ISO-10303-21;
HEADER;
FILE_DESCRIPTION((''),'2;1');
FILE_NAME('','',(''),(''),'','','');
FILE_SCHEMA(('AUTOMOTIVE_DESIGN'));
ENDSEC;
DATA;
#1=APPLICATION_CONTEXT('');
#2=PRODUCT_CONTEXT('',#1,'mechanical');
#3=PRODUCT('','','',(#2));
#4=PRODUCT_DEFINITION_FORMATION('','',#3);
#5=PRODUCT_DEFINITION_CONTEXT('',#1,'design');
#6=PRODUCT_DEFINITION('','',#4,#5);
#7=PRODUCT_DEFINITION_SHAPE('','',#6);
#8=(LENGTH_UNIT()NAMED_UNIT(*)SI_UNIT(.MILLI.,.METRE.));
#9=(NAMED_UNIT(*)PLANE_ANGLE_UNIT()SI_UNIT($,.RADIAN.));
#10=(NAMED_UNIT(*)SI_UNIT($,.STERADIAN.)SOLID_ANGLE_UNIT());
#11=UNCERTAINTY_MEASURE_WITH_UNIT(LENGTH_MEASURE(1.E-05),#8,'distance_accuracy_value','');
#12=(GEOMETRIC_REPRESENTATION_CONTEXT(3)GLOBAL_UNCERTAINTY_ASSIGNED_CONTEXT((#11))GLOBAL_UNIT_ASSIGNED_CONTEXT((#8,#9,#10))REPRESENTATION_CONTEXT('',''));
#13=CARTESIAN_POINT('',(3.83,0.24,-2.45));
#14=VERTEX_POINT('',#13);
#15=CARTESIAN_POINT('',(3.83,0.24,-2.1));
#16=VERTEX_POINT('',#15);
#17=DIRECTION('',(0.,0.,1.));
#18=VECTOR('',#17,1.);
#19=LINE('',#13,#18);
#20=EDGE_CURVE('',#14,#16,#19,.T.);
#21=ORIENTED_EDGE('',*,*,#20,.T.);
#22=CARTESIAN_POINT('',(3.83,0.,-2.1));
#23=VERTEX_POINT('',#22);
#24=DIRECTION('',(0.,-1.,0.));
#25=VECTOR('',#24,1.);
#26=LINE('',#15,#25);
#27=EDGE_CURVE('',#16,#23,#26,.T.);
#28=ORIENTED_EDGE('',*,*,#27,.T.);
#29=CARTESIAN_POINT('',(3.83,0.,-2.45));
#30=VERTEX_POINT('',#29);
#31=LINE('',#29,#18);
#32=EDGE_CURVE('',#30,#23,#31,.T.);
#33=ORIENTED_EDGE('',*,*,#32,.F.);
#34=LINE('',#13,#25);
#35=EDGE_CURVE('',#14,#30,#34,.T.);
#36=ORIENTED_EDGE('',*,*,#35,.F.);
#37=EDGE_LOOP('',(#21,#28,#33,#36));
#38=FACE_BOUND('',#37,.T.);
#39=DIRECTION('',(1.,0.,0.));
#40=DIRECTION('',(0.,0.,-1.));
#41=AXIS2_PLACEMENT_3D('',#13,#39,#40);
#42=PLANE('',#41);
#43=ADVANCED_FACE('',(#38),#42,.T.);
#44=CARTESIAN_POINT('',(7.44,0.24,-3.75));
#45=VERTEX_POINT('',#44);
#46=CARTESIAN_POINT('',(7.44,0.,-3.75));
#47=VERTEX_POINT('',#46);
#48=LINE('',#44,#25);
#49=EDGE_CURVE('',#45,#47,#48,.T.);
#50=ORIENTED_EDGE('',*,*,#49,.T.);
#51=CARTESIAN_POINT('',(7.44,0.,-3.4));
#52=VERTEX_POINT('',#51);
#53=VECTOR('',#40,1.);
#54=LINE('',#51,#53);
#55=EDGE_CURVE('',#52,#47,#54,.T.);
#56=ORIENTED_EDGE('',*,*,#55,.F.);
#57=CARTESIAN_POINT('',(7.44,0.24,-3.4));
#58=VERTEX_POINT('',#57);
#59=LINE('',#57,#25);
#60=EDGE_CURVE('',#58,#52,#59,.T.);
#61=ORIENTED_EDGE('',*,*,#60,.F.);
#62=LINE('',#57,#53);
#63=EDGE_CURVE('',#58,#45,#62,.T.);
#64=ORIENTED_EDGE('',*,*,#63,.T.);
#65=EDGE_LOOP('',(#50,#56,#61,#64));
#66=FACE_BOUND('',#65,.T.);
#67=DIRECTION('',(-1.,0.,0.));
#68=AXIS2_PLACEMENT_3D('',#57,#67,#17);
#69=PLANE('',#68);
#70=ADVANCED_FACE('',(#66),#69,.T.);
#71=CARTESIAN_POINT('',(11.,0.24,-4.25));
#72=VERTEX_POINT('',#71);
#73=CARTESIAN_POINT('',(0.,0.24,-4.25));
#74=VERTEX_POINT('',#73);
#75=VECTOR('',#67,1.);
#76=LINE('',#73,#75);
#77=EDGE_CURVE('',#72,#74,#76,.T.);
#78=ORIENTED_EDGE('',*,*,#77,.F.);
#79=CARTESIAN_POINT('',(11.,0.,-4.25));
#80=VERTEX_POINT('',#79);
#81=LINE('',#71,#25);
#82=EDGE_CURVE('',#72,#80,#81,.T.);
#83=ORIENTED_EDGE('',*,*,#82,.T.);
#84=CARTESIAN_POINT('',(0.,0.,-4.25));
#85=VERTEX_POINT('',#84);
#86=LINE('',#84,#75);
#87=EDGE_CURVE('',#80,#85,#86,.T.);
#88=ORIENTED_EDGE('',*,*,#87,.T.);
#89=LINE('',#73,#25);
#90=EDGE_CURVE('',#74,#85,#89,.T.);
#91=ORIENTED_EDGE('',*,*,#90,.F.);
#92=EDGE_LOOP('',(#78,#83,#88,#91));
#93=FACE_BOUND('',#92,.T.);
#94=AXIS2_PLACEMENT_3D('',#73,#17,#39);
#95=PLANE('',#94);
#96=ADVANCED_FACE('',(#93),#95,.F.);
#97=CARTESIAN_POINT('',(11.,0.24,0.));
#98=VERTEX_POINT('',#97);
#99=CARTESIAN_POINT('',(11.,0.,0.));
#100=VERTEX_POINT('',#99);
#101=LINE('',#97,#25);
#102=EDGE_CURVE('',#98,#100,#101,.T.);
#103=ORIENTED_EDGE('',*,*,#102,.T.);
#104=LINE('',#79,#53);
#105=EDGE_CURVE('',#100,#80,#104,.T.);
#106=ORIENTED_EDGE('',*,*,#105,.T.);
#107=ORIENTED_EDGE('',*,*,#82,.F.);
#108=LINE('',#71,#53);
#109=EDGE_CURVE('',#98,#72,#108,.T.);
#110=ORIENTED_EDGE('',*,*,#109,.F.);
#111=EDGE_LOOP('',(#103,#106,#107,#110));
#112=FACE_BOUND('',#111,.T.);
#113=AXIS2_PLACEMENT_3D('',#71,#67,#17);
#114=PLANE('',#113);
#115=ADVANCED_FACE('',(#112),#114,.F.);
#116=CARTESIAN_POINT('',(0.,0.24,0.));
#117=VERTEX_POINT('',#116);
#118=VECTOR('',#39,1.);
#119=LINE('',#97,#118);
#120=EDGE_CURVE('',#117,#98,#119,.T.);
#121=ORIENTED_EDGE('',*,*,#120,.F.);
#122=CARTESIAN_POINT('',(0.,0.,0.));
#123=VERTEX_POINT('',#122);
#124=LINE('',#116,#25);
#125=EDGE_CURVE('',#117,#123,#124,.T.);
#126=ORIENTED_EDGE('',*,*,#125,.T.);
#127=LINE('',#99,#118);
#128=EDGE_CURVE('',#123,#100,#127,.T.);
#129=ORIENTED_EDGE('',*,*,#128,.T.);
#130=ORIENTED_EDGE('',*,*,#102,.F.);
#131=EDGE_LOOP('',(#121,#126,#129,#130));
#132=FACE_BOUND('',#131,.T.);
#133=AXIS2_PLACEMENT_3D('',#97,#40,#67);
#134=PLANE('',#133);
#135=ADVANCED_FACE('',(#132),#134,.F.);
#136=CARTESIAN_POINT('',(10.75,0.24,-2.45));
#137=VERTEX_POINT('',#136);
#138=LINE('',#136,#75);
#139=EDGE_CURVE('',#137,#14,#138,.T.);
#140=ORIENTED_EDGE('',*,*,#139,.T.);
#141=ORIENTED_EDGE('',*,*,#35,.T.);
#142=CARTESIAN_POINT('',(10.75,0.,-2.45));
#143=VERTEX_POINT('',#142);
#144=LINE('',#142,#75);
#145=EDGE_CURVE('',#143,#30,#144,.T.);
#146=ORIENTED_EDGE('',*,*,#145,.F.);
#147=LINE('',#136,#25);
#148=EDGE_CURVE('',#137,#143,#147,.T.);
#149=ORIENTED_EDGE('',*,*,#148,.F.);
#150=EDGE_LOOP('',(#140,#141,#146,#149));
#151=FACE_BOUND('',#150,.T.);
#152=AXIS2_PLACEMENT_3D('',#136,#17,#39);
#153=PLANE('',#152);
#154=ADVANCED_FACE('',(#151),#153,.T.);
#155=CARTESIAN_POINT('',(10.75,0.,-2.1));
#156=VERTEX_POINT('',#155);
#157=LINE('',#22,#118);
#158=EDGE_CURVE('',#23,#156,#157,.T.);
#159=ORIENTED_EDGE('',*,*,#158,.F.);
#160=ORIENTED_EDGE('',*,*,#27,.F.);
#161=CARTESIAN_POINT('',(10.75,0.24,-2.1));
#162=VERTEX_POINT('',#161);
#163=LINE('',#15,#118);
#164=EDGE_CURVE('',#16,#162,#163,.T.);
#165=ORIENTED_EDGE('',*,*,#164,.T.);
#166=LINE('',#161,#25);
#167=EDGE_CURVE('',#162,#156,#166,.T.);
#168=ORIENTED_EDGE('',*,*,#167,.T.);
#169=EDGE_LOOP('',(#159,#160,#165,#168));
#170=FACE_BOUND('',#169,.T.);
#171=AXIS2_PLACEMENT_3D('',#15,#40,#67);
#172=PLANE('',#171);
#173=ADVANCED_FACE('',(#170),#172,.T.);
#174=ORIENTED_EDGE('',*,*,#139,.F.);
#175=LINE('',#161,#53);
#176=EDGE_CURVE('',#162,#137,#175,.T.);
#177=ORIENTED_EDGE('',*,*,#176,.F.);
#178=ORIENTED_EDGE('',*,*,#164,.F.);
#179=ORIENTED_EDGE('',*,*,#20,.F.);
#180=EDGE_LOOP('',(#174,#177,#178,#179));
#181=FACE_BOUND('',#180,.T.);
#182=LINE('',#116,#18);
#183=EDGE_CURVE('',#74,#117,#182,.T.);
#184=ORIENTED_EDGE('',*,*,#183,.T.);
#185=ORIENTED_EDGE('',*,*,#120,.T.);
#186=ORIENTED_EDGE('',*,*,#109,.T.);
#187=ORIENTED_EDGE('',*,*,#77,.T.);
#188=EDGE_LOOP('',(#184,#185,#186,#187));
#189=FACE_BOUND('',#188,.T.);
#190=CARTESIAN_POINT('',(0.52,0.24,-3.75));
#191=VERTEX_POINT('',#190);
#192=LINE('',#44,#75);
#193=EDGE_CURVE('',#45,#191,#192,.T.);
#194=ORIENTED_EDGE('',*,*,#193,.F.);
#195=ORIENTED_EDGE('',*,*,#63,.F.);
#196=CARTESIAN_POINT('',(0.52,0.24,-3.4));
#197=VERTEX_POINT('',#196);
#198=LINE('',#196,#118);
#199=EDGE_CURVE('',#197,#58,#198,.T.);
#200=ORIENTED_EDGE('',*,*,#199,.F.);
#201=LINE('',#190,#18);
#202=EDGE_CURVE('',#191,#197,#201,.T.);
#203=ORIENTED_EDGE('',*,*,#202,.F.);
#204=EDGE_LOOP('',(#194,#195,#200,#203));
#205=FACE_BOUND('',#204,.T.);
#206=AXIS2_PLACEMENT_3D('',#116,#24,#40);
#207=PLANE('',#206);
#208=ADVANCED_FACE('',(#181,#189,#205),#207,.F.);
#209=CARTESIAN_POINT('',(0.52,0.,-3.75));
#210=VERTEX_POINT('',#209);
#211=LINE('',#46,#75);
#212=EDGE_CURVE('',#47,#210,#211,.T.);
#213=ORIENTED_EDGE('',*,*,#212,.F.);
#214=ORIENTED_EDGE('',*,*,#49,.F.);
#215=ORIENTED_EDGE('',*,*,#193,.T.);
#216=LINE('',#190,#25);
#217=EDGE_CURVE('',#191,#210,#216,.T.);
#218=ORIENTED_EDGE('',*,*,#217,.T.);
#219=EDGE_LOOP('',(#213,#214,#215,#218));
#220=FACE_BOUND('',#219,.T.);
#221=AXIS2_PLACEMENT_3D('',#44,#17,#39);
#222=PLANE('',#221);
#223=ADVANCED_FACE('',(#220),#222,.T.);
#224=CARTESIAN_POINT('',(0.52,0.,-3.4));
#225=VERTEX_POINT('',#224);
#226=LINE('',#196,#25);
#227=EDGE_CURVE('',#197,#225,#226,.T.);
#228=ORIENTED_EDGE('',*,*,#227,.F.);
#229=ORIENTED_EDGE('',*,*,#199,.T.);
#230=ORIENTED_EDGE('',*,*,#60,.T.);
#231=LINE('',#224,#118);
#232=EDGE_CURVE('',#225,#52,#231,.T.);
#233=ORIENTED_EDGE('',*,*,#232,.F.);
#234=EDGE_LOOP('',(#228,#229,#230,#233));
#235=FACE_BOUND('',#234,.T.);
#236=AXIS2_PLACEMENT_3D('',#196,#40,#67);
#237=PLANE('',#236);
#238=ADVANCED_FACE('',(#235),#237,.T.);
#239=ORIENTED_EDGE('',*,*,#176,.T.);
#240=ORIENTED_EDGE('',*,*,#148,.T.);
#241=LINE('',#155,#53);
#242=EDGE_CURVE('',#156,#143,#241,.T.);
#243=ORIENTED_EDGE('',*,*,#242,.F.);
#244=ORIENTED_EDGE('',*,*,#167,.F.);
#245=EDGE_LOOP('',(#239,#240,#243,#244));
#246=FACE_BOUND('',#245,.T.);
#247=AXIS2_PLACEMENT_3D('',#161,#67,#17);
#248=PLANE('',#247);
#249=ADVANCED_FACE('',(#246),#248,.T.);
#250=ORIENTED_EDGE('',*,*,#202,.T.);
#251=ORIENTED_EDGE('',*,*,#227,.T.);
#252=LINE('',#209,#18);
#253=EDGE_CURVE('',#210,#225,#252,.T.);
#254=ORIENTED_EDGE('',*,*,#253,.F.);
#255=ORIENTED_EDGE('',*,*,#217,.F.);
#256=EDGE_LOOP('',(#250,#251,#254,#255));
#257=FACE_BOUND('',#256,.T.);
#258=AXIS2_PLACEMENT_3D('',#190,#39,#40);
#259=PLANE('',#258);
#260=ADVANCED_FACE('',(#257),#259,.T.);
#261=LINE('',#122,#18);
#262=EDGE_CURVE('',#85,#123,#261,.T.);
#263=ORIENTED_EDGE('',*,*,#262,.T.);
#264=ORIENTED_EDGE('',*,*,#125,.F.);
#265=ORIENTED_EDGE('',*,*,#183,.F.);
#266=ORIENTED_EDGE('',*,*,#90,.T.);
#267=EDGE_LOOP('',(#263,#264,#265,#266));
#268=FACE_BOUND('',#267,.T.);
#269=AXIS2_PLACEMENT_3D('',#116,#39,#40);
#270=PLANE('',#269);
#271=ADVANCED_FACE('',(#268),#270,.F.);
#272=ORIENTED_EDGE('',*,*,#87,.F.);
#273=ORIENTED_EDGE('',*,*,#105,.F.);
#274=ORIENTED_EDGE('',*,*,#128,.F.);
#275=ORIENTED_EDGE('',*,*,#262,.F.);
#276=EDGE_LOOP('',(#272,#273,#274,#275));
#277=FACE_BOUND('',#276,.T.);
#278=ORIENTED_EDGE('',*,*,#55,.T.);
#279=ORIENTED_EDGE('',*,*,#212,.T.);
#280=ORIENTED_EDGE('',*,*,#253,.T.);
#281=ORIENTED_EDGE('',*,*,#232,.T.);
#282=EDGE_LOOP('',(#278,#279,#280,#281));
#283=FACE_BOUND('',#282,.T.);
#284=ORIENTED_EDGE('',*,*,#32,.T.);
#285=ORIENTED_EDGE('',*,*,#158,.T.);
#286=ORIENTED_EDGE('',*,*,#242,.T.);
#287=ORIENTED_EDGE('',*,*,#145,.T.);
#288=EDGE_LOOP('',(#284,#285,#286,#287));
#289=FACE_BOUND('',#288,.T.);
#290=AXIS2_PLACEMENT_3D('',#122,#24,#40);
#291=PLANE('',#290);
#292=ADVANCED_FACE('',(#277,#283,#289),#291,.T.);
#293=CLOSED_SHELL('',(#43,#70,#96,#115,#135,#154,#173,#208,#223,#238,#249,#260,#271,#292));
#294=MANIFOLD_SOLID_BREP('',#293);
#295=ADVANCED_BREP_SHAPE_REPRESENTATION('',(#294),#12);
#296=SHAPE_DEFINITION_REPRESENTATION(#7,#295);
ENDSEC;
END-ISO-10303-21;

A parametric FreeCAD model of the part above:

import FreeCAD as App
import Part
import Sketcher
from FreeCAD import Vector
Q = App.Units.Quantity

doc = App.newDocument("Part")
params = doc.addObject("Spreadsheet::Sheet", "Params")
for row, (alias, value) in enumerate([
    ("sketch1_width", "11 mm"),
    ("sketch1_width2", "6.92 mm"),
    ("sketch1_height", "4.25 mm"),
    ("sketch1_height2", "0.35 mm"),
    ("pad1_length", "0.24 mm"),
], start=1):
    params.set(f"A{row}", alias)
    params.set(f"B{row}", "=" + value)
    params.setAlias(f"B{row}", alias)

body = doc.addObject("PartDesign::Body", "Body")

sketch1 = body.newObject("Sketcher::SketchObject", "Sketch")
sketch1.AttachmentSupport = (doc.getObject("XZ_Plane"), [""])
sketch1.MapMode = "FlatFace"
sketch1.addGeometry([
    Part.LineSegment(Vector(0, -4.25, 0), Vector(0, 0, 0)),
    Part.LineSegment(Vector(0, 0, 0), Vector(11, 0, 0)),
    Part.LineSegment(Vector(11, 0, 0), Vector(11, -4.25, 0)),
    Part.LineSegment(Vector(11, -4.25, 0), Vector(0, -4.25, 0)),
    Part.LineSegment(Vector(10.75, -2.1, 0), Vector(3.83, -2.1, 0)),
    Part.LineSegment(Vector(3.83, -2.1, 0), Vector(3.83, -2.45, 0)),
    Part.LineSegment(Vector(3.83, -2.45, 0), Vector(10.75, -2.45, 0)),
    Part.LineSegment(Vector(10.75, -2.45, 0), Vector(10.75, -2.1, 0)),
    Part.LineSegment(Vector(7.44, -3.4, 0), Vector(0.52, -3.4, 0)),
    Part.LineSegment(Vector(0.52, -3.4, 0), Vector(0.52, -3.75, 0)),
    Part.LineSegment(Vector(0.52, -3.75, 0), Vector(7.44, -3.75, 0)),
    Part.LineSegment(Vector(7.44, -3.75, 0), Vector(7.44, -3.4, 0)),
], False)
sketch1.addConstraint([
    Sketcher.Constraint("Coincident", 0, 2, 1, 1),
    Sketcher.Constraint("Coincident", 1, 2, 2, 1),
    Sketcher.Constraint("Coincident", 2, 2, 3, 1),
    Sketcher.Constraint("Coincident", 3, 2, 0, 1),
    Sketcher.Constraint("Coincident", 4, 2, 5, 1),
    Sketcher.Constraint("Coincident", 5, 2, 6, 1),
    Sketcher.Constraint("Coincident", 6, 2, 7, 1),
    Sketcher.Constraint("Coincident", 7, 2, 4, 1),
    Sketcher.Constraint("Coincident", 8, 2, 9, 1),
    Sketcher.Constraint("Coincident", 9, 2, 10, 1),
    Sketcher.Constraint("Coincident", 10, 2, 11, 1),
    Sketcher.Constraint("Coincident", 11, 2, 8, 1),
    Sketcher.Constraint("Vertical", 0),
    Sketcher.Constraint("Horizontal", 1),
    Sketcher.Constraint("Vertical", 2),
    Sketcher.Constraint("Horizontal", 3),
    Sketcher.Constraint("Horizontal", 4),
    Sketcher.Constraint("Vertical", 5),
    Sketcher.Constraint("Horizontal", 6),
    Sketcher.Constraint("Vertical", 7),
    Sketcher.Constraint("Horizontal", 8),
    Sketcher.Constraint("Vertical", 9),
    Sketcher.Constraint("Horizontal", 10),
    Sketcher.Constraint("Vertical", 11),
    Sketcher.Constraint("Coincident", 0, 2, -1, 1),
    Sketcher.Constraint("Equal", 6, 8),
    Sketcher.Constraint("Equal", 7, 9),
    Sketcher.Constraint("DistanceX", 1, 1, 1, 2, Q("11 mm")),
    Sketcher.Constraint("DistanceX", 4, 2, 4, 1, Q("6.92 mm")),
    Sketcher.Constraint("DistanceY", 0, 1, 0, 2, Q("4.25 mm")),
    Sketcher.Constraint("DistanceY", 5, 2, 5, 1, Q("0.35 mm")),
    Sketcher.Constraint("DistanceY", 4, 2, -1, 1, Q("2.1 mm")),
    Sketcher.Constraint("DistanceY", 8, 2, -1, 1, Q("3.4 mm")),
    Sketcher.Constraint("DistanceX", -1, 1, 4, 2, Q("3.83 mm")),
    Sketcher.Constraint("DistanceX", -1, 1, 8, 2, Q("0.52 mm")),
])
sketch1.setExpression("Constraints[27]", "Params.sketch1_width")
sketch1.setExpression("Constraints[28]", "Params.sketch1_width2")
sketch1.setExpression("Constraints[29]", "Params.sketch1_height")
sketch1.setExpression("Constraints[30]", "Params.sketch1_height2")
pad1 = body.newObject("PartDesign::Pad", "Pad")
pad1.Profile = sketch1
pad1.setExpression("Length", "Params.pad1_length")
pad1.Reversed = True

doc.recompute()
